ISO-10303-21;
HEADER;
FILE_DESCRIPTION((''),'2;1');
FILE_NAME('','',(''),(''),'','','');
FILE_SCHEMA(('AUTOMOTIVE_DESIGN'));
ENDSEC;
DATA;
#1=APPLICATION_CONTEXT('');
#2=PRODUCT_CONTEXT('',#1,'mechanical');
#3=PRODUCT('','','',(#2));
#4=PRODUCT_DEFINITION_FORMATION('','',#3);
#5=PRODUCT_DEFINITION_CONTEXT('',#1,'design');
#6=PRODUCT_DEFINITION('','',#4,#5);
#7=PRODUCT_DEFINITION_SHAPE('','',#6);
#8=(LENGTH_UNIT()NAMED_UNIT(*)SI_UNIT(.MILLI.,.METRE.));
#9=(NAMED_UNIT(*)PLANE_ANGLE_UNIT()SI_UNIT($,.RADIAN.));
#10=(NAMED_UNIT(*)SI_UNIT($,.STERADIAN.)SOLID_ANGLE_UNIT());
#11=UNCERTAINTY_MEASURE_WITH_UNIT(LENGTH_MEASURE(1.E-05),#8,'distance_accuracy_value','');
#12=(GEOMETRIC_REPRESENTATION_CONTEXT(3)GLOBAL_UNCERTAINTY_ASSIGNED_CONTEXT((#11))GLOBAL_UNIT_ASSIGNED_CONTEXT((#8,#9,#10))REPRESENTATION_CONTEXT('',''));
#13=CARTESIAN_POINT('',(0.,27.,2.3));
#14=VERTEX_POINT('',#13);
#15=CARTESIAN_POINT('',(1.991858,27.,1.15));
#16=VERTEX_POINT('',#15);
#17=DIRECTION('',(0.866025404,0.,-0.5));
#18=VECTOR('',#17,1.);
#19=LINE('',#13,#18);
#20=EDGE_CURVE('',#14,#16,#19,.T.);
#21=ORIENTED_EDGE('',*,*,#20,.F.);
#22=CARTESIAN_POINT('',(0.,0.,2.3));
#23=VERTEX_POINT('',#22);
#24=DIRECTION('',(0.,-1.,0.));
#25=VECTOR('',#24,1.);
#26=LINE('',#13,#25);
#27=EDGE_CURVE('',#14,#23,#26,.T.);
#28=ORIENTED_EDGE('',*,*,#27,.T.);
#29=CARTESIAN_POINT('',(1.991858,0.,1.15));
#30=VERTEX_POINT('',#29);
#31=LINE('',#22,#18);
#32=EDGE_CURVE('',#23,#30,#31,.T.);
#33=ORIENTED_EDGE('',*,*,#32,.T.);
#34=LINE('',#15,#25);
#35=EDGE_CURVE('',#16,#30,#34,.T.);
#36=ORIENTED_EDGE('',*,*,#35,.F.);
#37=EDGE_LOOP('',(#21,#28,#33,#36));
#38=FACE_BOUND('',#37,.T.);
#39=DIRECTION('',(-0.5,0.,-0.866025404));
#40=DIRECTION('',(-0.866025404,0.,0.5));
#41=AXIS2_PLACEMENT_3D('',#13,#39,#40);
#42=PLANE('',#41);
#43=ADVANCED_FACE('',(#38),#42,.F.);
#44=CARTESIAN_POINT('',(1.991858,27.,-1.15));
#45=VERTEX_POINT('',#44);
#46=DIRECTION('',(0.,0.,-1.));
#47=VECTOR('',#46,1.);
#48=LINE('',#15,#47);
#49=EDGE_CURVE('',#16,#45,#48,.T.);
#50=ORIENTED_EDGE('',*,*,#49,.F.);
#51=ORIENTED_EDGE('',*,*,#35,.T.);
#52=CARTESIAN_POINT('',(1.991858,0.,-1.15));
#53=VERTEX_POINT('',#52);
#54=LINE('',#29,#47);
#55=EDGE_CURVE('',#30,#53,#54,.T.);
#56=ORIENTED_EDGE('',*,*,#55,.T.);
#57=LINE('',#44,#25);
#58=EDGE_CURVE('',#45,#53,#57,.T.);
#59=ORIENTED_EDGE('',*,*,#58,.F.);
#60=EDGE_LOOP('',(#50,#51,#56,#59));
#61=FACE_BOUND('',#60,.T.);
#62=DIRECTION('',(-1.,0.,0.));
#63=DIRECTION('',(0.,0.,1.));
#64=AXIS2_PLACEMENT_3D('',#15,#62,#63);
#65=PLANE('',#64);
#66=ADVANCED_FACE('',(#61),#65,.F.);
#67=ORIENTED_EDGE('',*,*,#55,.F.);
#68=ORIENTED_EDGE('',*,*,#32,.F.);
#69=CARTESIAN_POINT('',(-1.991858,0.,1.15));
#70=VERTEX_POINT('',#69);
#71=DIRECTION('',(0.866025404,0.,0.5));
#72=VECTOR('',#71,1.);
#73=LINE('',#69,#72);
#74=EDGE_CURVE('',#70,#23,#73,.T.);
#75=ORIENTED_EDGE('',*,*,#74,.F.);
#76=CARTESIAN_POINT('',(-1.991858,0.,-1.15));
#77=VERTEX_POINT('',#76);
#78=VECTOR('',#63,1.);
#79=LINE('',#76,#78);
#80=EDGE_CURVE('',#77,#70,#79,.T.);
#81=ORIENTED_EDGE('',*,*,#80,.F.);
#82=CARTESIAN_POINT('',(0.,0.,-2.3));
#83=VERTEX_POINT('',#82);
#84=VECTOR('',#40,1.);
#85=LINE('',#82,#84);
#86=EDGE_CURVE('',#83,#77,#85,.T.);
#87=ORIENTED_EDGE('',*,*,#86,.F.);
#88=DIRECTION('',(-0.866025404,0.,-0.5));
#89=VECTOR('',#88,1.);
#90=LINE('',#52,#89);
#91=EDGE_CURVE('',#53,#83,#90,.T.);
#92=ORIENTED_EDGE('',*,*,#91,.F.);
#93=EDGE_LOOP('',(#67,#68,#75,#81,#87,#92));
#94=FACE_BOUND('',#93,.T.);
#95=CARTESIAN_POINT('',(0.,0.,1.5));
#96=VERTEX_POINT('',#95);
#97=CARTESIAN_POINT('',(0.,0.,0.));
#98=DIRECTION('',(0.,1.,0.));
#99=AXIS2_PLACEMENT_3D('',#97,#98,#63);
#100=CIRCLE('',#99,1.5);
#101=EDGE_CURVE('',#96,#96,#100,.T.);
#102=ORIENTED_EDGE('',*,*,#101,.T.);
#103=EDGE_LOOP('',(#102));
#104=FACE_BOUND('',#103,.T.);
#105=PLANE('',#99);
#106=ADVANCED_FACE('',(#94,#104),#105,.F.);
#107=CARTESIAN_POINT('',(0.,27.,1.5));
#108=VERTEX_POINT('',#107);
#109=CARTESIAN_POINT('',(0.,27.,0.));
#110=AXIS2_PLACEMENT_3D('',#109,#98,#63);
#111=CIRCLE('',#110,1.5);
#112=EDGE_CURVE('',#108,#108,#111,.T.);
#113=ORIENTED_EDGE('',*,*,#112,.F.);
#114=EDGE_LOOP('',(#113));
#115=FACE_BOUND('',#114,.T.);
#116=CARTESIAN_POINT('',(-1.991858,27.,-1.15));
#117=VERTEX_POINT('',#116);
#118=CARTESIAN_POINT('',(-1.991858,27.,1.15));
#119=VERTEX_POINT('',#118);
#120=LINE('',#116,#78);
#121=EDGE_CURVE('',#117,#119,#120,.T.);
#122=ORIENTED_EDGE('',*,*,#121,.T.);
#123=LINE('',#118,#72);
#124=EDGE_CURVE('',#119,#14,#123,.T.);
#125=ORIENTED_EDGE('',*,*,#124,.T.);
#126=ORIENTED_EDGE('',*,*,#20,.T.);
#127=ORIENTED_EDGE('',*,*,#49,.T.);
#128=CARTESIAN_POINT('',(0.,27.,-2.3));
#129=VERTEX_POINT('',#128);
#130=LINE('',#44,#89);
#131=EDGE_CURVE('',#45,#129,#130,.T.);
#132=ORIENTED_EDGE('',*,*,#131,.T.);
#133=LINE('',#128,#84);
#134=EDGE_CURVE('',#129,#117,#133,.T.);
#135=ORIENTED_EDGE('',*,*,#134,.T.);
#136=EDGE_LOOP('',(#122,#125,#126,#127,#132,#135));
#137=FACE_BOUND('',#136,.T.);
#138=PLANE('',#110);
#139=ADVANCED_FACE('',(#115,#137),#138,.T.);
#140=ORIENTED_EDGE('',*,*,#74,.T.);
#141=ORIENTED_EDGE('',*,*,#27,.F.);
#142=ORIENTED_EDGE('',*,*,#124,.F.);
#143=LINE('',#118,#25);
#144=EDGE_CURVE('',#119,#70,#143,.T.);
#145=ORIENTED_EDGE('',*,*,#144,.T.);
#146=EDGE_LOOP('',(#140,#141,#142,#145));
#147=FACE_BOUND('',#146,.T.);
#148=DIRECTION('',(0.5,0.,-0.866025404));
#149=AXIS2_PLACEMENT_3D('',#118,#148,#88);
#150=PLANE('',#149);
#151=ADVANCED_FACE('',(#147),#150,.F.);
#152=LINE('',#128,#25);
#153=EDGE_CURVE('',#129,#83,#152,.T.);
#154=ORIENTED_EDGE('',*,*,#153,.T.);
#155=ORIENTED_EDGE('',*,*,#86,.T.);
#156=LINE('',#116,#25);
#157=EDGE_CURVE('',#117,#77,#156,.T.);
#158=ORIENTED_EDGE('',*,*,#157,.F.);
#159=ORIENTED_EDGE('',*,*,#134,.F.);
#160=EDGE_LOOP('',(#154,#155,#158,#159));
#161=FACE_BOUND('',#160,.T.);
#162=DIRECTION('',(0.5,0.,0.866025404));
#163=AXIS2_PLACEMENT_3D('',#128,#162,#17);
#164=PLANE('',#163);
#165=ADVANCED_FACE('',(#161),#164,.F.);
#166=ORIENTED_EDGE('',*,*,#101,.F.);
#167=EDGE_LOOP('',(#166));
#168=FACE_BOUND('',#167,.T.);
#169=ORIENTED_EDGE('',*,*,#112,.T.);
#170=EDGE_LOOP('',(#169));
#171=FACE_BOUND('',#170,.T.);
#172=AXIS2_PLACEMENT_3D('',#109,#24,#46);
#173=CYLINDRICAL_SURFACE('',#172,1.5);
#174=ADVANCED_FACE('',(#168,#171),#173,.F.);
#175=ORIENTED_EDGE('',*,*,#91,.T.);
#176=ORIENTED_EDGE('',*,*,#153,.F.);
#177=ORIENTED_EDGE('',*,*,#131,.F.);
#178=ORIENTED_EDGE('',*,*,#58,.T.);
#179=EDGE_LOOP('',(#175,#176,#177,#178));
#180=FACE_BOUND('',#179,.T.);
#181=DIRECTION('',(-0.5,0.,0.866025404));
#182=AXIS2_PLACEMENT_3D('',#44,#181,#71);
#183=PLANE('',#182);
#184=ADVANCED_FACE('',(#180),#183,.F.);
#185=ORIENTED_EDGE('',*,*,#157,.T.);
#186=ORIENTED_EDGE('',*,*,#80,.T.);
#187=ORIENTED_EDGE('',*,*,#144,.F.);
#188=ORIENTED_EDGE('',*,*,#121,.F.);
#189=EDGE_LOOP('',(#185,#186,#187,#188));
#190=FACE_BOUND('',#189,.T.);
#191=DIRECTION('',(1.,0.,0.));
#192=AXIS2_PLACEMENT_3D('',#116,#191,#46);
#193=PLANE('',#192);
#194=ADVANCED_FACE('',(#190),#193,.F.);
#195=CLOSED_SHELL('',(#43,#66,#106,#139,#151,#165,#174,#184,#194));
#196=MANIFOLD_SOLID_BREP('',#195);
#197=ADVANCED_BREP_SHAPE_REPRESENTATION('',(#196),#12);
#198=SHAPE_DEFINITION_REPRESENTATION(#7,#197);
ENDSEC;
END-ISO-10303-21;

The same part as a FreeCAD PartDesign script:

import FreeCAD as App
import Part
import Sketcher

V = App.Vector
Q = App.Units.Quantity


def add_polygon(sketch, points):
    """Adds a closed chain of lines whose ends are joined by coincident constraints."""
    first, n = sketch.GeometryCount, len(points)
    for a, b in zip(points, points[1:] + points[:1]):
        sketch.addGeometry(Part.LineSegment(App.Vector(*a, 0), App.Vector(*b, 0)), False)
    for i in range(n):
        sketch.addConstraint(Sketcher.Constraint("Coincident", first + i, 2, first + (i + 1) % n, 1))

doc = App.newDocument("Part")
params = doc.addObject("Spreadsheet::Sheet", "Params")
for row, (alias, value) in enumerate([
    ("sketch1_diameter", "3 mm"),
    ("sketch1_height", "2.3 mm"),
    ("sketch1_length", "2.3 mm"),
    ("pad1_length", "27 mm"),
], start=1):
    params.set(f"A{row}", alias)
    params.set(f"B{row}", "=" + value)
    params.setAlias(f"B{row}", alias)

body = doc.addObject("PartDesign::Body", "Body")

# Sketch on XZ plane
sketch1 = body.newObject("Sketcher::SketchObject", "Sketch")
sketch1.AttachmentSupport = (doc.getObject("XZ_Plane"), [""])
sketch1.MapMode = "FlatFace"
add_polygon(sketch1, [(0, -2.3), (-2, -1.1), (-2, 1.1), (0, 2.3), (2, 1.1), (2, -1.1)])  # lines 0-5
sketch1.addGeometry(Part.Circle(V(0, 0, 0), V(0, 0, 1), 1.5), False)  # 6
sketch1.addConstraint([
    Sketcher.Constraint("Vertical", 1),
    Sketcher.Constraint("Vertical", 4),
    Sketcher.Constraint("Coincident", 6, 3, -1, 1),
    Sketcher.Constraint("Symmetric", 0, 2, 3, 2, -1, 1),
    Sketcher.Constraint("Symmetric", 2, 2, 5, 2, -1, 1),
    Sketcher.Constraint("PointOnObject", 2, 2, -2),
    Sketcher.Constraint("Parallel", 2, 5),
    Sketcher.Constraint("Horizontal", 1, 2, 3, 2),
    Sketcher.Constraint("Diameter", 6, 3.0),
    Sketcher.Constraint("Angle", 0, Q("150 deg")),
    Sketcher.Constraint("DistanceY", 1, 1, 1, 2, 2.3),
    Sketcher.Constraint("Distance", 0, 2.3),
])
sketch1.setExpression("Constraints[14]", "Params.sketch1_diameter")
sketch1.setExpression("Constraints[16]", "Params.sketch1_height")
sketch1.setExpression("Constraints[17]", "Params.sketch1_length")
pad1 = body.newObject("PartDesign::Pad", "Pad")
pad1.Profile = sketch1
pad1.setExpression("Length", "Params.pad1_length")
pad1.Reversed = True

doc.recompute()
